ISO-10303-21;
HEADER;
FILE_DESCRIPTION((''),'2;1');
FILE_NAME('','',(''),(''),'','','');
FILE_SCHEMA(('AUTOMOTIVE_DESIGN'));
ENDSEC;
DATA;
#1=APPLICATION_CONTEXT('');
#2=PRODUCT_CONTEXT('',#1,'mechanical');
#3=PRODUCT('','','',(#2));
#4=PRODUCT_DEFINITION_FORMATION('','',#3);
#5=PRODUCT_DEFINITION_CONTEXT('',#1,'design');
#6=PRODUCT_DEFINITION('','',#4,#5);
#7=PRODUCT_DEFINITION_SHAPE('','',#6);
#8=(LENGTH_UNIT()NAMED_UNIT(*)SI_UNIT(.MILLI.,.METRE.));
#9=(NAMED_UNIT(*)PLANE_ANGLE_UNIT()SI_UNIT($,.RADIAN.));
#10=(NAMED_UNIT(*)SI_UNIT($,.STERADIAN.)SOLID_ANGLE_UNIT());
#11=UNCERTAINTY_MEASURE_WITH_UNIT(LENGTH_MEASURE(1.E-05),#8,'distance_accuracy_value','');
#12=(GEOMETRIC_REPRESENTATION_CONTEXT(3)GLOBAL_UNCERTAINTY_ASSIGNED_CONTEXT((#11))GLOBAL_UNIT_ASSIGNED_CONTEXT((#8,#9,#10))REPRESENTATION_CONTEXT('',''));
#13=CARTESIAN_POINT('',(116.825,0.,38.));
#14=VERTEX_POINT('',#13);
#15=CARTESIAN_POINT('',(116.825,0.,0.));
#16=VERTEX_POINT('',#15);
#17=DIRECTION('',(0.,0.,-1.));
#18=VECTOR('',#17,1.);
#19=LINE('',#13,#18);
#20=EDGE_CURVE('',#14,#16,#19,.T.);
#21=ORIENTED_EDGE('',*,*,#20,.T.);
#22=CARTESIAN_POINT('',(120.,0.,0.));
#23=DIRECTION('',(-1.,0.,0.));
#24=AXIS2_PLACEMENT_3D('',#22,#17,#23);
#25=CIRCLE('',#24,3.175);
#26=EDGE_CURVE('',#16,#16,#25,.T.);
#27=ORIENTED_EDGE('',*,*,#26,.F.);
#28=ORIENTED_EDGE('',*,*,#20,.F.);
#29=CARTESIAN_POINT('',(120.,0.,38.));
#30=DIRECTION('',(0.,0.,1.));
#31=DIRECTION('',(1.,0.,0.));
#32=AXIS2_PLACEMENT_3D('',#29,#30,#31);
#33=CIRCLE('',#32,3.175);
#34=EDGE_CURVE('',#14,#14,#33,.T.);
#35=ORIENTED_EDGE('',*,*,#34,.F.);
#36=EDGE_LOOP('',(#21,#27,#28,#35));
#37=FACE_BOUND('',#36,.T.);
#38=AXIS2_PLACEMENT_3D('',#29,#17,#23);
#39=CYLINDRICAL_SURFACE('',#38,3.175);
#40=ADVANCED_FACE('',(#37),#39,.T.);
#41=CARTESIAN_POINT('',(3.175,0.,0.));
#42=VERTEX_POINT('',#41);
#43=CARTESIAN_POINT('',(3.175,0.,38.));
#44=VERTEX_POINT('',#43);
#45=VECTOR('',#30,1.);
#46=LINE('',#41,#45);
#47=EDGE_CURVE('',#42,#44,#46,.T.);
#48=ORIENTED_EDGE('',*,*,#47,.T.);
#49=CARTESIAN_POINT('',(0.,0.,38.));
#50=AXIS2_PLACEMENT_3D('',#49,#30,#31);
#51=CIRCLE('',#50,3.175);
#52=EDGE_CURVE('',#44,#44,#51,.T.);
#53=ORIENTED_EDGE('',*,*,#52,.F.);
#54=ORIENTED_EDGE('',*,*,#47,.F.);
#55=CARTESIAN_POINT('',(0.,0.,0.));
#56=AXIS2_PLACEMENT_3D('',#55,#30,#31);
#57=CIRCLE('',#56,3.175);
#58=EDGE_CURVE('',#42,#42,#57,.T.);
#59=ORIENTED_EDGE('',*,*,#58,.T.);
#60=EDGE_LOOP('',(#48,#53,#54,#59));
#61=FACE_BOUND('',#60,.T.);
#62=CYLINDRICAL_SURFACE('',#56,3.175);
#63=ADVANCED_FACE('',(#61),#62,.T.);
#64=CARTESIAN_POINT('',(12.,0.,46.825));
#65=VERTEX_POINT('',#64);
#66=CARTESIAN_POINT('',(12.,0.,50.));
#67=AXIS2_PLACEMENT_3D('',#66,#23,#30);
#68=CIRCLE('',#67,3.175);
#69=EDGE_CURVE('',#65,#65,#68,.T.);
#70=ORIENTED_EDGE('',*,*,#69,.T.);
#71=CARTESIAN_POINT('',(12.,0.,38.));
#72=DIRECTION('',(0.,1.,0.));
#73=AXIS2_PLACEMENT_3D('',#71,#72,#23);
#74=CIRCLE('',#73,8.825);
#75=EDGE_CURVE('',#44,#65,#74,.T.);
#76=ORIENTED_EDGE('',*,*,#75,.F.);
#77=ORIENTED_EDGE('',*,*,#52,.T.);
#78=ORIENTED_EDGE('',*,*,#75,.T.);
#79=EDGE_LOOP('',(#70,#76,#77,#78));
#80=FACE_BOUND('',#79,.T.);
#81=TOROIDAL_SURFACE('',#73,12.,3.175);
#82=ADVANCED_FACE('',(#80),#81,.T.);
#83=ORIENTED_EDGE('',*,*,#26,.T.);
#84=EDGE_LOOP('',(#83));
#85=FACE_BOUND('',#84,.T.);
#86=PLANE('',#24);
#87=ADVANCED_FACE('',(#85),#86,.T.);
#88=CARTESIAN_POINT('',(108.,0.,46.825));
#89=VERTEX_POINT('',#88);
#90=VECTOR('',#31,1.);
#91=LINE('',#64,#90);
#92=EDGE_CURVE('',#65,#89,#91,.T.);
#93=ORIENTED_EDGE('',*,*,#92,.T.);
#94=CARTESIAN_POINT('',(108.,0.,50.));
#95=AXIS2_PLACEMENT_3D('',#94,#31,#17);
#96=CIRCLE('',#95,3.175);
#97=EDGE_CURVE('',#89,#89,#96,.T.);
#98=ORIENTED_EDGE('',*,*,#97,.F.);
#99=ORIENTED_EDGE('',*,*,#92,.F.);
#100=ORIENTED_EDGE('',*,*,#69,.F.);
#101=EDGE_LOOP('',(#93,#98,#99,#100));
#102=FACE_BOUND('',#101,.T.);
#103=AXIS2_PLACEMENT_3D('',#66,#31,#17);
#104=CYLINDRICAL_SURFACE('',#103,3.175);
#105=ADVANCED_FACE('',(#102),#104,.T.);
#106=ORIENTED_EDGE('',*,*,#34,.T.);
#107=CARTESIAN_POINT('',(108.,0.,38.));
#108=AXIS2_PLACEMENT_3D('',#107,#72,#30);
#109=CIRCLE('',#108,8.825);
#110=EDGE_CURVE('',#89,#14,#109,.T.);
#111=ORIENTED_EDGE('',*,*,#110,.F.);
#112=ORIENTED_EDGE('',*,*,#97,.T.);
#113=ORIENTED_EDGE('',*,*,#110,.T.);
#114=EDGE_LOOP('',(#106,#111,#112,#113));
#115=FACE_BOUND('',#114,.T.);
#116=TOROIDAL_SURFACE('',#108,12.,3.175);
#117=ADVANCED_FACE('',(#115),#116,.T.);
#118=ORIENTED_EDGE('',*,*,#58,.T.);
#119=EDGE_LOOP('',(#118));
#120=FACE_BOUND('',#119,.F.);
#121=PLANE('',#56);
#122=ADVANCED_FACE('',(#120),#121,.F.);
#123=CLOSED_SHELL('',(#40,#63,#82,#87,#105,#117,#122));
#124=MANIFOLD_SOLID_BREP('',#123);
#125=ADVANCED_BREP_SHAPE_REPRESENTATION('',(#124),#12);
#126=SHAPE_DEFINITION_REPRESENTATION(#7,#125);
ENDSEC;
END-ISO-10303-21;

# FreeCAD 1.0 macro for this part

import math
import FreeCAD as App
import Part
import Sketcher

doc = App.newDocument("Part")
body = doc.addObject("PartDesign::Body", "Body")

# Sketch on XY plane
sketch1 = body.newObject("Sketcher::SketchObject", "Sketch")
sketch1.AttachmentSupport = (doc.getObject("XY_Plane"), [""])
sketch1.MapMode = "FlatFace"
sketch1.addGeometry(Part.Circle(App.Vector(0, 0, 0), App.Vector(0, 0, 1), 3.2), False)
sketch1.addConstraint(Sketcher.Constraint("Coincident", 0, 3, -1, 1))
sketch1.addConstraint(Sketcher.Constraint("Diameter", 0, 6.35))

# Sketch on XZ plane
sketch2 = body.newObject("Sketcher::SketchObject", "Sketch001")
sketch2.AttachmentSupport = (doc.getObject("XZ_Plane"), [""])
sketch2.MapMode = "FlatFace"
sketch2.addGeometry(Part.LineSegment(App.Vector(0, 0, 0), App.Vector(0, 38, 0)), False)
sketch2.addGeometry(Part.ArcOfCircle(Part.Circle(App.Vector(12, 38, 0), App.Vector(0, 0, 1), 12), math.radians(90), math.radians(180)), False)
sketch2.addGeometry(Part.LineSegment(App.Vector(12, 50, 0), App.Vector(108, 50, 0)), False)
sketch2.addGeometry(Part.ArcOfCircle(Part.Circle(App.Vector(108, 38, 0), App.Vector(0, 0, 1), 12), math.radians(0), math.radians(90)), False)
sketch2.addGeometry(Part.LineSegment(App.Vector(120, 38, 0), App.Vector(120, 0, 0)), False)
sketch2.addConstraint(Sketcher.Constraint("Tangent", 0, 2, 1, 2))
sketch2.addConstraint(Sketcher.Constraint("Tangent", 1, 1, 2, 1))
sketch2.addConstraint(Sketcher.Constraint("Tangent", 2, 2, 3, 2))
sketch2.addConstraint(Sketcher.Constraint("Tangent", 3, 1, 4, 1))
sketch2.addConstraint(Sketcher.Constraint("Vertical", 0))
sketch2.addConstraint(Sketcher.Constraint("Horizontal", 2))
sketch2.addConstraint(Sketcher.Constraint("Vertical", 4))
sketch2.addConstraint(Sketcher.Constraint("Coincident", 0, 1, -1, 1))
sketch2.addConstraint(Sketcher.Constraint("Equal", 1, 3))
sketch2.addConstraint(Sketcher.Constraint("PointOnObject", 4, 2, -1))
sketch2.addConstraint(Sketcher.Constraint("Radius", 1, 12.0))
sketch2.addConstraint(Sketcher.Constraint("DistanceX", 2, 1, 2, 2, 96.0))
sketch2.addConstraint(Sketcher.Constraint("DistanceY", 0, 1, 0, 2, 38.0))
doc.recompute()

additivepipe = body.newObject("PartDesign::AdditivePipe", "AdditivePipe")
additivepipe.Profile = sketch1
additivepipe.Spine = (sketch2, ["Edge1", "Edge2", "Edge3", "Edge4", "Edge5"])

doc.recompute()
